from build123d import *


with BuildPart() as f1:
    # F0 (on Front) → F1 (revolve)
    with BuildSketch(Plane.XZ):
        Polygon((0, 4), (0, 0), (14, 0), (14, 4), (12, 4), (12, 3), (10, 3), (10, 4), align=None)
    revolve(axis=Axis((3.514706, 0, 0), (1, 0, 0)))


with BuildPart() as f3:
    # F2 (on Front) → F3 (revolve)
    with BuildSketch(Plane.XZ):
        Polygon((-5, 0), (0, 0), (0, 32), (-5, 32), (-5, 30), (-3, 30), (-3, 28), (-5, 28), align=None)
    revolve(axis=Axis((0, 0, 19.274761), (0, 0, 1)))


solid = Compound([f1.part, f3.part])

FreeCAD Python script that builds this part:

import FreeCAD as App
import Part
import Sketcher

V = App.Vector

doc = App.newDocument("Part")
body = doc.addObject("PartDesign::Body", "Body")

# Sketch on XZ plane
sketch1 = body.newObject("Sketcher::SketchObject", "Sketch")
sketch1.AttachmentSupport = (doc.getObject("XZ_Plane"), [""])
sketch1.MapMode = "FlatFace"
sketch1.addGeometry(Part.LineSegment(V(0, 4, 0), V(0, 0, 0)), False)
sketch1.addGeometry(Part.LineSegment(V(0, 0, 0), V(14, 0, 0)), False)
sketch1.addGeometry(Part.LineSegment(V(14, 0, 0), V(14, 4, 0)), False)
sketch1.addGeometry(Part.LineSegment(V(14, 4, 0), V(12, 4, 0)), False)
sketch1.addGeometry(Part.LineSegment(V(12, 4, 0), V(12, 3, 0)), False)
sketch1.addGeometry(Part.LineSegment(V(12, 3, 0), V(10, 3, 0)), False)
sketch1.addGeometry(Part.LineSegment(V(10, 3, 0), V(10, 4, 0)), False)
sketch1.addGeometry(Part.LineSegment(V(10, 4, 0), V(0, 4, 0)), False)
sketch1.addConstraint(Sketcher.Constraint("Coincident", 0, 2, 1, 1))
sketch1.addConstraint(Sketcher.Constraint("Coincident", 1, 2, 2, 1))
sketch1.addConstraint(Sketcher.Constraint("Coincident", 2, 2, 3, 1))
sketch1.addConstraint(Sketcher.Constraint("Coincident", 3, 2, 4, 1))
sketch1.addConstraint(Sketcher.Constraint("Coincident", 4, 2, 5, 1))
sketch1.addConstraint(Sketcher.Constraint("Coincident", 5, 2, 6, 1))
sketch1.addConstraint(Sketcher.Constraint("Coincident", 6, 2, 7, 1))
sketch1.addConstraint(Sketcher.Constraint("Coincident", 7, 2, 0, 1))
sketch1.addConstraint(Sketcher.Constraint("Vertical", 0))
sketch1.addConstraint(Sketcher.Constraint("Horizontal", 1))
sketch1.addConstraint(Sketcher.Constraint("Vertical", 2))
sketch1.addConstraint(Sketcher.Constraint("Horizontal", 3))
sketch1.addConstraint(Sketcher.Constraint("Vertical", 4))
sketch1.addConstraint(Sketcher.Constraint("Horizontal", 5))
sketch1.addConstraint(Sketcher.Constraint("Vertical", 6))
sketch1.addConstraint(Sketcher.Constraint("Horizontal", 7))
sketch1.addConstraint(Sketcher.Constraint("Coincident", 0, 2, -1, 1))
sketch1.addConstraint(Sketcher.Constraint("Horizontal", 3, 2, 6, 2))
sketch1.addConstraint(Sketcher.Constraint("Equal", 3, 5))
sketch1.addConstraint(Sketcher.Constraint("DistanceX", 1, 1, 1, 2, 14.0))
sketch1.addConstraint(Sketcher.Constraint("DistanceX", 3, 2, 3, 1, 2.0))
sketch1.addConstraint(Sketcher.Constraint("DistanceY", 0, 2, 0, 1, 4.0))
sketch1.addConstraint(Sketcher.Constraint("DistanceY", 4, 2, 4, 1, 1.0))
revolution = body.newObject("PartDesign::Revolution", "Revolution")
revolution.Profile = sketch1
revolution.ReferenceAxis = (sketch1, ["H_Axis"])
revolution.Angle = 360
body2 = doc.addObject("PartDesign::Body", "Body001")

# Sketch on XZ plane
sketch2 = body2.newObject("Sketcher::SketchObject", "Sketch001")
sketch2.AttachmentSupport = (doc.getObject("XZ_Plane001"), [""])
sketch2.MapMode = "FlatFace"
sketch2.addGeometry(Part.LineSegment(V(-5, 0, 0), V(0, 0, 0)), False)
sketch2.addGeometry(Part.LineSegment(V(0, 0, 0), V(0, 32, 0)), False)
sketch2.addGeometry(Part.LineSegment(V(0, 32, 0), V(-5, 32, 0)), False)
sketch2.addGeometry(Part.LineSegment(V(-5, 32, 0), V(-5, 30, 0)), False)
sketch2.addGeometry(Part.LineSegment(V(-5, 30, 0), V(-3, 30, 0)), False)
sketch2.addGeometry(Part.LineSegment(V(-3, 30, 0), V(-3, 28, 0)), False)
sketch2.addGeometry(Part.LineSegment(V(-3, 28, 0), V(-5, 28, 0)), False)
sketch2.addGeometry(Part.LineSegment(V(-5, 28, 0), V(-5, 0, 0)), False)
sketch2.addConstraint(Sketcher.Constraint("Coincident", 0, 2, 1, 1))
sketch2.addConstraint(Sketcher.Constraint("Coincident", 1, 2, 2, 1))
sketch2.addConstraint(Sketcher.Constraint("Coincident", 2, 2, 3, 1))
sketch2.addConstraint(Sketcher.Constraint("Coincident", 3, 2, 4, 1))
sketch2.addConstraint(Sketcher.Constraint("Coincident", 4, 2, 5, 1))
sketch2.addConstraint(Sketcher.Constraint("Coincident", 5, 2, 6, 1))
sketch2.addConstraint(Sketcher.Constraint("Coincident", 6, 2, 7, 1))
sketch2.addConstraint(Sketcher.Constraint("Coincident", 7, 2, 0, 1))
sketch2.addConstraint(Sketcher.Constraint("Horizontal", 0))
sketch2.addConstraint(Sketcher.Constraint("Vertical", 1))
sketch2.addConstraint(Sketcher.Constraint("Horizontal", 2))
sketch2.addConstraint(Sketcher.Constraint("Vertical", 3))
sketch2.addConstraint(Sketcher.Constraint("Horizontal", 4))
sketch2.addConstraint(Sketcher.Constraint("Vertical", 5))
sketch2.addConstraint(Sketcher.Constraint("Horizontal", 6))
sketch2.addConstraint(Sketcher.Constraint("Vertical", 7))
sketch2.addConstraint(Sketcher.Constraint("Coincident", 0, 2, -1, 1))
sketch2.addConstraint(Sketcher.Constraint("Vertical", 3, 2, 6, 2))
sketch2.addConstraint(Sketcher.Constraint("Equal", 6, 3))
sketch2.addConstraint(Sketcher.Constraint("Equal", 3, 5))
sketch2.addConstraint(Sketcher.Constraint("DistanceX", 0, 1, 0, 2, 5.0))
sketch2.addConstraint(Sketcher.Constraint("DistanceX", 4, 1, 4, 2, 2.0))
sketch2.addConstraint(Sketcher.Constraint("DistanceY", 1, 1, 1, 2, 32.0))
revolution2 = body2.newObject("PartDesign::Revolution", "Revolution001")
revolution2.Profile = sketch2
revolution2.ReferenceAxis = (sketch2, ["V_Axis"])
revolution2.Angle = 360

doc.recompute()
